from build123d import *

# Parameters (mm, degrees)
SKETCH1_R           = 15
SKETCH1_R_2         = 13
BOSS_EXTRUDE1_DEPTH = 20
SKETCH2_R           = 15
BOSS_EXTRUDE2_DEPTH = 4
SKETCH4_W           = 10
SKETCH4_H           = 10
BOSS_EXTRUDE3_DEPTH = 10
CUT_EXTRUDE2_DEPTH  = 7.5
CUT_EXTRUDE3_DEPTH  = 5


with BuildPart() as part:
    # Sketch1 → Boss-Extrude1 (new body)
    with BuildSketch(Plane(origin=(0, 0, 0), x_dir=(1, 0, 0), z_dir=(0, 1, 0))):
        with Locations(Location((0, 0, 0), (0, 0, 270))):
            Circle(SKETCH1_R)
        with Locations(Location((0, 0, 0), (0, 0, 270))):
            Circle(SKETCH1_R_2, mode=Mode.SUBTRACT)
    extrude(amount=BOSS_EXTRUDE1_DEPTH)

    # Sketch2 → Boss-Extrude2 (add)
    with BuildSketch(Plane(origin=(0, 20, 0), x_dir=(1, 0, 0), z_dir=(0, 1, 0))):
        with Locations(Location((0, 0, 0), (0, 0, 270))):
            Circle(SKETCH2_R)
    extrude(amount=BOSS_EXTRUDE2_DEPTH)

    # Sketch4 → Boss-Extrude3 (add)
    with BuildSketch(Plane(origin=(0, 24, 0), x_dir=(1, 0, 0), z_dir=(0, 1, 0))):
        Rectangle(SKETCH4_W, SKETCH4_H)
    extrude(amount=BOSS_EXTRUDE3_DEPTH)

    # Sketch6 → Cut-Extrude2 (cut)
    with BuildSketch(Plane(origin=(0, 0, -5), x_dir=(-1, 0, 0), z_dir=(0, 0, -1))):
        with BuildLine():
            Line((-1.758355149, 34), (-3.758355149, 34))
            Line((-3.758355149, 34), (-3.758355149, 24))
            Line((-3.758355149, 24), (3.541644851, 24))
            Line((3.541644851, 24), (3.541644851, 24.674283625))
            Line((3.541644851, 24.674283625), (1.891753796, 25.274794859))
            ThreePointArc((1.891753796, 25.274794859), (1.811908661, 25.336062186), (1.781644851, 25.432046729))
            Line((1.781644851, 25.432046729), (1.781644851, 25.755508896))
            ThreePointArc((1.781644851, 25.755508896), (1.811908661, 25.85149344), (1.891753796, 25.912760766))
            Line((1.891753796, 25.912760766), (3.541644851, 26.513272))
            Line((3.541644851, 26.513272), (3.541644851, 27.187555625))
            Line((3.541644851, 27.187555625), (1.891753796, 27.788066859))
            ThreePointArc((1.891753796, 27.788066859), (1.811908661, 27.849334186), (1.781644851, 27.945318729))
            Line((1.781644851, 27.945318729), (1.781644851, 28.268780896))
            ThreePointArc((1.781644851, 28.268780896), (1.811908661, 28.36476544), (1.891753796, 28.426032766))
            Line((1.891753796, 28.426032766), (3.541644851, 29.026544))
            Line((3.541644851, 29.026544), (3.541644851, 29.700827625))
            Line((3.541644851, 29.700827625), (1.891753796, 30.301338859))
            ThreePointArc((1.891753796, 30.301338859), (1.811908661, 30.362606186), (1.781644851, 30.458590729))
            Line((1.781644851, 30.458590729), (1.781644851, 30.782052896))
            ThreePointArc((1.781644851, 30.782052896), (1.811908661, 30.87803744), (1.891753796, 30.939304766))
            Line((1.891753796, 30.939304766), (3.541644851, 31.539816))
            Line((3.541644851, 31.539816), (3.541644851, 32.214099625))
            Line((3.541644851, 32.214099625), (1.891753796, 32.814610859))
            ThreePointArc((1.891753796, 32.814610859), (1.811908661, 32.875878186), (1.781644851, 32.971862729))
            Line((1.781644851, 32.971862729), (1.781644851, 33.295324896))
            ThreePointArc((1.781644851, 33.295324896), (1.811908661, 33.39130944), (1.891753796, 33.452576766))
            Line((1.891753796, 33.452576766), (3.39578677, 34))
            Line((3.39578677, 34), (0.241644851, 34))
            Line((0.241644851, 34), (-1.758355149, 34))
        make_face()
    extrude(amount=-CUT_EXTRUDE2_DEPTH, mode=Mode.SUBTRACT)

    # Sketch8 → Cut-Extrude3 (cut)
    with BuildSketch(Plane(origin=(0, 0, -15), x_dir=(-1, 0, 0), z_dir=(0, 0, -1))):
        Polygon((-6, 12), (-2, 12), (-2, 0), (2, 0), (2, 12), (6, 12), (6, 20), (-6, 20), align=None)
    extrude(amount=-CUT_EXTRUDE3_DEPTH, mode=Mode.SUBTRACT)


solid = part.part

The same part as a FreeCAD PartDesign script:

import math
import FreeCAD as App
import Part
import Sketcher
Q = App.Units.Quantity

doc = App.newDocument("Part")
body = doc.addObject("PartDesign::Body", "Body")

sketch1 = body.newObject("Sketcher::SketchObject", "Sketch")
sketch1.AttachmentSupport = (doc.getObject("XZ_Plane"), [""])
sketch1.MapMode = "FlatFace"
sketch1.addGeometry([
    Part.Circle(App.Vector(0, 0, 0), App.Vector(0, 0, 1), 15),
    Part.Circle(App.Vector(0, 0, 0), App.Vector(0, 0, 1), 13),
], False)
sketch1.addConstraint([
    Sketcher.Constraint("Coincident", 0, 3, -1, 1),
    Sketcher.Constraint("Coincident", 1, 3, -1, 1),
    Sketcher.Constraint("Diameter", 0, Q("30 mm")),
    Sketcher.Constraint("Diameter", 1, Q("26 mm")),
])
pad1 = body.newObject("PartDesign::Pad", "Pad")
pad1.Profile = sketch1
pad1.Length = 20
pad1.Reversed = True

sketch2 = body.newObject("Sketcher::SketchObject", "Sketch001")
sketch2.AttachmentSupport = (doc.getObject("XZ_Plane"), [""])
sketch2.MapMode = "FlatFace"
sketch2.AttachmentOffset = App.Placement(App.Vector(0, 0, -20), App.Rotation())
sketch2.addGeometry(Part.Circle(App.Vector(0, 0, 0), App.Vector(0, 0, 1), 15), False)
sketch2.addConstraint([
    Sketcher.Constraint("Coincident", 0, 3, -1, 1),
    Sketcher.Constraint("Diameter", 0, Q("30 mm")),
])
pad2 = body.newObject("PartDesign::Pad", "Pad001")
pad2.Profile = sketch2
pad2.Length = 4
pad2.Reversed = True

sketch3 = body.newObject("Sketcher::SketchObject", "Sketch002")
sketch3.AttachmentSupport = (doc.getObject("XZ_Plane"), [""])
sketch3.MapMode = "FlatFace"
sketch3.AttachmentOffset = App.Placement(App.Vector(0, 0, -24), App.Rotation())
sketch3.addGeometry([
    Part.LineSegment(App.Vector(-5, -5, 0), App.Vector(-5, 5, 0)),
    Part.LineSegment(App.Vector(-5, 5, 0), App.Vector(5, 5, 0)),
    Part.LineSegment(App.Vector(5, 5, 0), App.Vector(5, -5, 0)),
    Part.LineSegment(App.Vector(5, -5, 0), App.Vector(-5, -5, 0)),
], False)
sketch3.addConstraint([
    Sketcher.Constraint("Coincident", 0, 2, 1, 1),
    Sketcher.Constraint("Coincident", 1, 2, 2, 1),
    Sketcher.Constraint("Coincident", 2, 2, 3, 1),
    Sketcher.Constraint("Coincident", 3, 2, 0, 1),
    Sketcher.Constraint("Vertical", 0),
    Sketcher.Constraint("Horizontal", 1),
    Sketcher.Constraint("Vertical", 2),
    Sketcher.Constraint("Horizontal", 3),
    Sketcher.Constraint("Symmetric", 0, 2, 2, 2, -1, 1),
    Sketcher.Constraint("Equal", 3, 0),
    Sketcher.Constraint("DistanceX", 1, 1, 1, 2, Q("10 mm")),
])
pad3 = body.newObject("PartDesign::Pad", "Pad002")
pad3.Profile = sketch3
pad3.Length = 10
pad3.Reversed = True

sketch4 = body.newObject("Sketcher::SketchObject", "Sketch003")
sketch4.AttachmentSupport = (doc.getObject("XY_Plane"), [""])
sketch4.MapMode = "FlatFace"
sketch4.AttachmentOffset = App.Placement(App.Vector(0, 0, -5), App.Rotation())
sketch4.addGeometry([
    Part.LineSegment(App.Vector(3.76, 34, 0), App.Vector(3.76, 24, 0)),
    Part.LineSegment(App.Vector(3.76, 24, 0), App.Vector(-3.54, 24, 0)),
    Part.LineSegment(App.Vector(-3.54, 24, 0), App.Vector(-3.54, 24.67, 0)),
    Part.LineSegment(App.Vector(-3.54, 24.67, 0), App.Vector(-1.89, 25.27, 0)),
    Part.ArcOfCircle(Part.Circle(App.Vector(-1.95, 25.43, 0), App.Vector(0, 0, 1), 0.17), math.radians(-70), math.radians(0)),
    Part.LineSegment(App.Vector(-1.78, 25.43, 0), App.Vector(-1.78, 25.76, 0)),
    Part.ArcOfCircle(Part.Circle(App.Vector(-1.95, 25.76, 0), App.Vector(0, 0, 1), 0.17), math.radians(0), math.radians(70)),
    Part.LineSegment(App.Vector(-1.89, 25.91, 0), App.Vector(-3.54, 26.51, 0)),
    Part.LineSegment(App.Vector(-3.54, 26.51, 0), App.Vector(-3.54, 27.19, 0)),
    Part.LineSegment(App.Vector(-3.54, 27.19, 0), App.Vector(-1.89, 27.79, 0)),
    Part.ArcOfCircle(Part.Circle(App.Vector(-1.95, 27.95, 0), App.Vector(0, 0, 1), 0.17), math.radians(-70), math.radians(0)),
    Part.LineSegment(App.Vector(-1.78, 27.95, 0), App.Vector(-1.78, 28.27, 0)),
    Part.ArcOfCircle(Part.Circle(App.Vector(-1.95, 28.27, 0), App.Vector(0, 0, 1), 0.17), math.radians(0), math.radians(70)),
    Part.LineSegment(App.Vector(-1.89, 28.43, 0), App.Vector(-3.54, 29.03, 0)),
    Part.LineSegment(App.Vector(-3.54, 29.03, 0), App.Vector(-3.54, 29.7, 0)),
    Part.LineSegment(App.Vector(-3.54, 29.7, 0), App.Vector(-1.89, 30.3, 0)),
    Part.ArcOfCircle(Part.Circle(App.Vector(-1.95, 30.46, 0), App.Vector(0, 0, 1), 0.17), math.radians(-70), math.radians(0)),
    Part.LineSegment(App.Vector(-1.78, 30.46, 0), App.Vector(-1.78, 30.78, 0)),
    Part.ArcOfCircle(Part.Circle(App.Vector(-1.95, 30.78, 0), App.Vector(0, 0, 1), 0.17), math.radians(0), math.radians(70)),
    Part.LineSegment(App.Vector(-1.89, 30.94, 0), App.Vector(-3.54, 31.54, 0)),
    Part.LineSegment(App.Vector(-3.54, 31.54, 0), App.Vector(-3.54, 32.21, 0)),
    Part.LineSegment(App.Vector(-3.54, 32.21, 0), App.Vector(-1.89, 32.81, 0)),
    Part.ArcOfCircle(Part.Circle(App.Vector(-1.95, 32.97, 0), App.Vector(0, 0, 1), 0.17), math.radians(-70), math.radians(0)),
    Part.LineSegment(App.Vector(-1.78, 32.97, 0), App.Vector(-1.78, 33.3, 0)),
    Part.ArcOfCircle(Part.Circle(App.Vector(-1.95, 33.3, 0), App.Vector(0, 0, 1), 0.17), math.radians(0), math.radians(70)),
    Part.LineSegment(App.Vector(-1.89, 33.45, 0), App.Vector(-3.4, 34, 0)),
    Part.LineSegment(App.Vector(-3.4, 34, 0), App.Vector(3.76, 34, 0)),
], False)
sketch4.addConstraint([
    Sketcher.Constraint("Coincident", 0, 2, 1, 1),
    Sketcher.Constraint("Coincident", 1, 2, 2, 1),
    Sketcher.Constraint("Coincident", 2, 2, 3, 1),
    Sketcher.Constraint("Tangent", 3, 2, 4, 1),
    Sketcher.Constraint("Tangent", 4, 2, 5, 1),
    Sketcher.Constraint("Tangent", 5, 2, 6, 1),
    Sketcher.Constraint("Tangent", 6, 2, 7, 1),
    Sketcher.Constraint("Coincident", 7, 2, 8, 1),
    Sketcher.Constraint("Coincident", 8, 2, 9, 1),
    Sketcher.Constraint("Tangent", 9, 2, 10, 1),
    Sketcher.Constraint("Tangent", 10, 2, 11, 1),
    Sketcher.Constraint("Tangent", 11, 2, 12, 1),
    Sketcher.Constraint("Tangent", 12, 2, 13, 1),
    Sketcher.Constraint("Coincident", 13, 2, 14, 1),
    Sketcher.Constraint("Coincident", 14, 2, 15, 1),
    Sketcher.Constraint("Tangent", 15, 2, 16, 1),
    Sketcher.Constraint("Tangent", 16, 2, 17, 1),
    Sketcher.Constraint("Tangent", 17, 2, 18, 1),
    Sketcher.Constraint("Tangent", 18, 2, 19, 1),
    Sketcher.Constraint("Coincident", 19, 2, 20, 1),
    Sketcher.Constraint("Coincident", 20, 2, 21, 1),
    Sketcher.Constraint("Tangent", 21, 2, 22, 1),
    Sketcher.Constraint("Tangent", 22, 2, 23, 1),
    Sketcher.Constraint("Tangent", 23, 2, 24, 1),
    Sketcher.Constraint("Tangent", 24, 2, 25, 1),
    Sketcher.Constraint("Coincident", 25, 2, 26, 1),
    Sketcher.Constraint("Coincident", 26, 2, 0, 1),
    Sketcher.Constraint("Vertical", 0),
    Sketcher.Constraint("Horizontal", 1),
    Sketcher.Constraint("Vertical", 2),
    Sketcher.Constraint("Vertical", 5),
    Sketcher.Constraint("Vertical", 8),
    Sketcher.Constraint("Vertical", 11),
    Sketcher.Constraint("Vertical", 14),
    Sketcher.Constraint("Vertical", 17),
    Sketcher.Constraint("Vertical", 20),
    Sketcher.Constraint("Vertical", 23),
    Sketcher.Constraint("Horizontal", 26),
    Sketcher.Constraint("Equal", 4, 6),
    Sketcher.Constraint("Equal", 6, 10),
    Sketcher.Constraint("Equal", 10, 12),
    Sketcher.Constraint("Equal", 12, 16),
    Sketcher.Constraint("Equal", 16, 18),
    Sketcher.Constraint("Equal", 18, 22),
    Sketcher.Constraint("Equal", 22, 24),
    Sketcher.Constraint("Parallel", 3, 9),
    Sketcher.Constraint("Parallel", 7, 13),
    Sketcher.Constraint("Parallel", 9, 15),
    Sketcher.Constraint("Parallel", 13, 19),
    Sketcher.Constraint("Parallel", 15, 21),
    Sketcher.Constraint("Parallel", 19, 25),
    Sketcher.Constraint("Vertical", 6, 3, 10, 3),
    Sketcher.Constraint("Vertical", 12, 3, 16, 3),
    Sketcher.Constraint("Vertical", 18, 3, 22, 3),
    Sketcher.Constraint("Vertical", 3, 2, 6, 2),
    Sketcher.Constraint("Vertical", 2, 2, 7, 2),
    Sketcher.Constraint("Vertical", 8, 2, 13, 2),
    Sketcher.Constraint("Vertical", 14, 2, 19, 2),
    Sketcher.Constraint("Equal", 2, 8),
    Sketcher.Constraint("Equal", 5, 11),
    Sketcher.Constraint("Equal", 8, 14),
    Sketcher.Constraint("Equal", 11, 17),
    Sketcher.Constraint("Equal", 14, 20),
    Sketcher.Constraint("Equal", 17, 23),
    Sketcher.Constraint("DistanceY", 0, 2, 0, 1, Q("10 mm")),
    Sketcher.Constraint("Angle", 3, Q("20 deg")),
    Sketcher.Constraint("DistanceX", 1, 2, 1, 1, Q("7.3 mm")),
    Sketcher.Constraint("DistanceY", -1, 1, 0, 2, Q("24 mm")),
    Sketcher.Constraint("DistanceX", 2, 2, 4, 2, Q("1.76 mm")),
    Sketcher.Constraint("Radius", 4, Q("0.167344 mm")),
    Sketcher.Constraint("DistanceX", 26, 1, 26, 2, Q("7.154142 mm")),
    Sketcher.Constraint("DistanceY", -1, 1, 20, 2, Q("32.2141 mm")),
    Sketcher.Constraint("DistanceX", 4, 3, -1, 1, Q("1.948989 mm")),
])
pocket1 = body.newObject("PartDesign::Pocket", "Pocket")
pocket1.Profile = sketch4
pocket1.Length = 7.5
pocket1.Reversed = True

sketch5 = body.newObject("Sketcher::SketchObject", "Sketch004")
sketch5.AttachmentSupport = (doc.getObject("XY_Plane"), [""])
sketch5.MapMode = "FlatFace"
sketch5.AttachmentOffset = App.Placement(App.Vector(0, 0, -15), App.Rotation())
sketch5.addGeometry([
    Part.LineSegment(App.Vector(6, 12, 0), App.Vector(2, 12, 0)),
    Part.LineSegment(App.Vector(2, 12, 0), App.Vector(2, 0, 0)),
    Part.LineSegment(App.Vector(2, 0, 0), App.Vector(-2, 0, 0)),
    Part.LineSegment(App.Vector(-2, 0, 0), App.Vector(-2, 12, 0)),
    Part.LineSegment(App.Vector(-2, 12, 0), App.Vector(-6, 12, 0)),
    Part.LineSegment(App.Vector(-6, 12, 0), App.Vector(-6, 20, 0)),
    Part.LineSegment(App.Vector(-6, 20, 0), App.Vector(6, 20, 0)),
    Part.LineSegment(App.Vector(6, 20, 0), App.Vector(6, 12, 0)),
], False)
sketch5.addConstraint([
    Sketcher.Constraint("Coincident", 0, 2, 1, 1),
    Sketcher.Constraint("Coincident", 1, 2, 2, 1),
    Sketcher.Constraint("Coincident", 2, 2, 3, 1),
    Sketcher.Constraint("Coincident", 3, 2, 4, 1),
    Sketcher.Constraint("Coincident", 4, 2, 5, 1),
    Sketcher.Constraint("Coincident", 5, 2, 6, 1),
    Sketcher.Constraint("Coincident", 6, 2, 7, 1),
    Sketcher.Constraint("Coincident", 7, 2, 0, 1),
    Sketcher.Constraint("Horizontal", 0),
    Sketcher.Constraint("Vertical", 1),
    Sketcher.Constraint("Horizontal", 2),
    Sketcher.Constraint("Vertical", 3),
    Sketcher.Constraint("Horizontal", 4),
    Sketcher.Constraint("Vertical", 5),
    Sketcher.Constraint("Horizontal", 6),
    Sketcher.Constraint("Vertical", 7),
    Sketcher.Constraint("Symmetric", 1, 2, 2, 2, -1, 1),
    Sketcher.Constraint("Symmetric", 4, 2, 7, 2, -2),
    Sketcher.Constraint("Equal", 0, 2),
    Sketcher.Constraint("Equal", 6, 1),
    Sketcher.Constraint("DistanceX", 0, 2, 0, 1, Q("4 mm")),
    Sketcher.Constraint("DistanceY", 5, 1, 5, 2, Q("8 mm")),
])
pocket2 = body.newObject("PartDesign::Pocket", "Pocket001")
pocket2.Profile = sketch5
pocket2.Length = 5
pocket2.Reversed = True

doc.recompute()
